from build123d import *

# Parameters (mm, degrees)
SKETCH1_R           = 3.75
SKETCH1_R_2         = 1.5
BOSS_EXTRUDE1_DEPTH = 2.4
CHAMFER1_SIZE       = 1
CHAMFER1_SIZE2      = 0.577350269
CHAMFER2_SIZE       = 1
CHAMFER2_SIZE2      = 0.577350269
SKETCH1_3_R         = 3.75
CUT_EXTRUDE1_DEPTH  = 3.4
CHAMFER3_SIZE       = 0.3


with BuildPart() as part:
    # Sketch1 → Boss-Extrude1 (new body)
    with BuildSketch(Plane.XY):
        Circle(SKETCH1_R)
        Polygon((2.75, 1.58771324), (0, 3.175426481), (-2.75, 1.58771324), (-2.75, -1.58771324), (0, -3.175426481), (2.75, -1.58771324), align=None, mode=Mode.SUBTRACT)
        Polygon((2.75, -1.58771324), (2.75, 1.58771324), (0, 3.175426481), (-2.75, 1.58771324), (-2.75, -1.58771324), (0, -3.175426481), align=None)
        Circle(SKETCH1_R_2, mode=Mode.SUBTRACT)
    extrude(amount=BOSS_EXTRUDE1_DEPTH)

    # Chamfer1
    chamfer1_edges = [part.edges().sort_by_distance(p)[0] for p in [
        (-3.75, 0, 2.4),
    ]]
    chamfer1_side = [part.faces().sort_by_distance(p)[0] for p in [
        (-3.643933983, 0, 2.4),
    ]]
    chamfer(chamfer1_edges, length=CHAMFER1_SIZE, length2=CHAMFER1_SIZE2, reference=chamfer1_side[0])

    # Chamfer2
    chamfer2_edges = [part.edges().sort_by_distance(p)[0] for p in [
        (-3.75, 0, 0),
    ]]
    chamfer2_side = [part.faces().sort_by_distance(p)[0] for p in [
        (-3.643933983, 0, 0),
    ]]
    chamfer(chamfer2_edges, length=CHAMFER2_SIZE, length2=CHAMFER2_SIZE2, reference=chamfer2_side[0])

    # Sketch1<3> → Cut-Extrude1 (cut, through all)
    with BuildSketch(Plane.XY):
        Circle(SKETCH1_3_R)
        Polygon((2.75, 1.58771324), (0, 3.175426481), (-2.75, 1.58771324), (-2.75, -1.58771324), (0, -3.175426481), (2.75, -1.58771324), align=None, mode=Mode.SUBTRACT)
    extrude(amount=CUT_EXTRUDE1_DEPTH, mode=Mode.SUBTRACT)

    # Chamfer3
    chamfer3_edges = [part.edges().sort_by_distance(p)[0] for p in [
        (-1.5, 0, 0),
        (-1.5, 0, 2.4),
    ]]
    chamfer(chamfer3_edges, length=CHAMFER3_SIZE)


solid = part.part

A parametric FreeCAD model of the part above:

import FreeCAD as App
import Part
import Sketcher
Q = App.Units.Quantity


def edges_at(feature, points):
    """Names of the edges that pass closest to the given points."""
    edges = feature.Shape.Edges
    near = lambda p: min(range(len(edges)), key=lambda i: edges[i].distToShape(Part.Vertex(*p))[0])
    return sorted({f"Edge{near(p) + 1}" for p in points})

doc = App.newDocument("Part")
body = doc.addObject("PartDesign::Body", "Body")

# Sketch on XY plane
sketch1 = doc.addObject("Sketcher::SketchObject", "Sketch")
body.addObject(sketch1)
sketch1.AttachmentSupport = (doc.XY_Plane, [""])
sketch1.MapMode = "FlatFace"
sketch1.addGeometry([
    Part.Circle(App.Vector(0, 0, 0), App.Vector(0, 0, 1), 3.75),
    Part.Circle(App.Vector(0, 0, 0), App.Vector(0, 0, 1), 1.5),
], False)
sketch1.addConstraint([
    Sketcher.Constraint("Coincident", 0, 3, -1, 1),
    Sketcher.Constraint("Coincident", 1, 3, -1, 1),
    Sketcher.Constraint("Diameter", 1, 3.0),
    Sketcher.Constraint("Diameter", 0, 7.5),
])
pad1 = doc.addObject("PartDesign::Pad", "Pad")
body.addObject(pad1)
pad1.Profile = sketch1
pad1.Length = 2.4
doc.recompute()

chamfer = doc.addObject("PartDesign::Chamfer", "Chamfer")
body.addObject(chamfer)
chamfer.Base = (pad1, edges_at(pad1, [(-3.75, 0, 2.4)]))
chamfer.ChamferType = "Two distances"
chamfer.Size = 1
chamfer.Size2 = 0.57735
chamfer.FlipDirection = True
doc.recompute()

chamfer2 = doc.addObject("PartDesign::Chamfer", "Chamfer001")
body.addObject(chamfer2)
chamfer2.Base = (chamfer, edges_at(chamfer, [(-3.75, 0, 0)]))
chamfer2.ChamferType = "Two distances"
chamfer2.Size = 1
chamfer2.Size2 = 0.57735
chamfer2.FlipDirection = True

# Sketch on XY plane
sketch2 = doc.addObject("Sketcher::SketchObject", "Sketch001")
body.addObject(sketch2)
sketch2.AttachmentSupport = (doc.XY_Plane, [""])
sketch2.MapMode = "FlatFace"
sketch2.addGeometry([
    Part.Circle(App.Vector(0, 0, 0), App.Vector(0, 0, 1), 3.75),  # 0
    Part.LineSegment(App.Vector(0, 3.175426, 0), App.Vector(2.75, 1.587713, 0)),  # 1
    Part.LineSegment(App.Vector(2.75, 1.587713, 0), App.Vector(2.75, -1.587713, 0)),  # 2
    Part.LineSegment(App.Vector(2.75, -1.587713, 0), App.Vector(0, -3.175426, 0)),  # 3
    Part.LineSegment(App.Vector(0, -3.175426, 0), App.Vector(-2.75, -1.587713, 0)),  # 4
    Part.LineSegment(App.Vector(-2.75, -1.587713, 0), App.Vector(-2.75, 1.587713, 0)),  # 5
    Part.LineSegment(App.Vector(-2.75, 1.587713, 0), App.Vector(0, 3.175426, 0)),  # 6
], False)
sketch2.addConstraint([
    Sketcher.Constraint("Coincident", 1, 2, 2, 1),
    Sketcher.Constraint("Coincident", 2, 2, 3, 1),
    Sketcher.Constraint("Coincident", 3, 2, 4, 1),
    Sketcher.Constraint("Coincident", 4, 2, 5, 1),
    Sketcher.Constraint("Coincident", 5, 2, 6, 1),
    Sketcher.Constraint("Coincident", 6, 2, 1, 1),
    Sketcher.Constraint("Vertical", 2),
    Sketcher.Constraint("Vertical", 5),
    Sketcher.Constraint("Coincident", 0, 3, -1, 1),
    Sketcher.Constraint("Symmetric", 1, 2, 4, 2, -1, 1),
    Sketcher.Constraint("Symmetric", 3, 2, 6, 2, -1, 1),
    Sketcher.Constraint("PointOnObject", 3, 2, -2),
    Sketcher.Constraint("Parallel", 3, 6),
    Sketcher.Constraint("Horizontal", 2, 2, 4, 2),
    Sketcher.Constraint("Diameter", 0, 7.5),
    Sketcher.Constraint("Angle", 1, Q("-30 deg")),
    Sketcher.Constraint("DistanceX", 4, 2, 2, 2, 5.5),
    Sketcher.Constraint("DistanceY", 2, 2, 2, 1, 3.175426),
])
pocket1 = doc.addObject("PartDesign::Pocket", "Pocket")
body.addObject(pocket1)
pocket1.Profile = sketch2
pocket1.Type = "ThroughAll"
pocket1.Reversed = True
doc.recompute()

chamfer3 = doc.addObject("PartDesign::Chamfer", "Chamfer002")
body.addObject(chamfer3)
chamfer3.Base = (pocket1, edges_at(pocket1, [(-1.5, 0, 0), (-1.5, 0, 2.4)]))
chamfer3.Size = 0.3

doc.recompute()
